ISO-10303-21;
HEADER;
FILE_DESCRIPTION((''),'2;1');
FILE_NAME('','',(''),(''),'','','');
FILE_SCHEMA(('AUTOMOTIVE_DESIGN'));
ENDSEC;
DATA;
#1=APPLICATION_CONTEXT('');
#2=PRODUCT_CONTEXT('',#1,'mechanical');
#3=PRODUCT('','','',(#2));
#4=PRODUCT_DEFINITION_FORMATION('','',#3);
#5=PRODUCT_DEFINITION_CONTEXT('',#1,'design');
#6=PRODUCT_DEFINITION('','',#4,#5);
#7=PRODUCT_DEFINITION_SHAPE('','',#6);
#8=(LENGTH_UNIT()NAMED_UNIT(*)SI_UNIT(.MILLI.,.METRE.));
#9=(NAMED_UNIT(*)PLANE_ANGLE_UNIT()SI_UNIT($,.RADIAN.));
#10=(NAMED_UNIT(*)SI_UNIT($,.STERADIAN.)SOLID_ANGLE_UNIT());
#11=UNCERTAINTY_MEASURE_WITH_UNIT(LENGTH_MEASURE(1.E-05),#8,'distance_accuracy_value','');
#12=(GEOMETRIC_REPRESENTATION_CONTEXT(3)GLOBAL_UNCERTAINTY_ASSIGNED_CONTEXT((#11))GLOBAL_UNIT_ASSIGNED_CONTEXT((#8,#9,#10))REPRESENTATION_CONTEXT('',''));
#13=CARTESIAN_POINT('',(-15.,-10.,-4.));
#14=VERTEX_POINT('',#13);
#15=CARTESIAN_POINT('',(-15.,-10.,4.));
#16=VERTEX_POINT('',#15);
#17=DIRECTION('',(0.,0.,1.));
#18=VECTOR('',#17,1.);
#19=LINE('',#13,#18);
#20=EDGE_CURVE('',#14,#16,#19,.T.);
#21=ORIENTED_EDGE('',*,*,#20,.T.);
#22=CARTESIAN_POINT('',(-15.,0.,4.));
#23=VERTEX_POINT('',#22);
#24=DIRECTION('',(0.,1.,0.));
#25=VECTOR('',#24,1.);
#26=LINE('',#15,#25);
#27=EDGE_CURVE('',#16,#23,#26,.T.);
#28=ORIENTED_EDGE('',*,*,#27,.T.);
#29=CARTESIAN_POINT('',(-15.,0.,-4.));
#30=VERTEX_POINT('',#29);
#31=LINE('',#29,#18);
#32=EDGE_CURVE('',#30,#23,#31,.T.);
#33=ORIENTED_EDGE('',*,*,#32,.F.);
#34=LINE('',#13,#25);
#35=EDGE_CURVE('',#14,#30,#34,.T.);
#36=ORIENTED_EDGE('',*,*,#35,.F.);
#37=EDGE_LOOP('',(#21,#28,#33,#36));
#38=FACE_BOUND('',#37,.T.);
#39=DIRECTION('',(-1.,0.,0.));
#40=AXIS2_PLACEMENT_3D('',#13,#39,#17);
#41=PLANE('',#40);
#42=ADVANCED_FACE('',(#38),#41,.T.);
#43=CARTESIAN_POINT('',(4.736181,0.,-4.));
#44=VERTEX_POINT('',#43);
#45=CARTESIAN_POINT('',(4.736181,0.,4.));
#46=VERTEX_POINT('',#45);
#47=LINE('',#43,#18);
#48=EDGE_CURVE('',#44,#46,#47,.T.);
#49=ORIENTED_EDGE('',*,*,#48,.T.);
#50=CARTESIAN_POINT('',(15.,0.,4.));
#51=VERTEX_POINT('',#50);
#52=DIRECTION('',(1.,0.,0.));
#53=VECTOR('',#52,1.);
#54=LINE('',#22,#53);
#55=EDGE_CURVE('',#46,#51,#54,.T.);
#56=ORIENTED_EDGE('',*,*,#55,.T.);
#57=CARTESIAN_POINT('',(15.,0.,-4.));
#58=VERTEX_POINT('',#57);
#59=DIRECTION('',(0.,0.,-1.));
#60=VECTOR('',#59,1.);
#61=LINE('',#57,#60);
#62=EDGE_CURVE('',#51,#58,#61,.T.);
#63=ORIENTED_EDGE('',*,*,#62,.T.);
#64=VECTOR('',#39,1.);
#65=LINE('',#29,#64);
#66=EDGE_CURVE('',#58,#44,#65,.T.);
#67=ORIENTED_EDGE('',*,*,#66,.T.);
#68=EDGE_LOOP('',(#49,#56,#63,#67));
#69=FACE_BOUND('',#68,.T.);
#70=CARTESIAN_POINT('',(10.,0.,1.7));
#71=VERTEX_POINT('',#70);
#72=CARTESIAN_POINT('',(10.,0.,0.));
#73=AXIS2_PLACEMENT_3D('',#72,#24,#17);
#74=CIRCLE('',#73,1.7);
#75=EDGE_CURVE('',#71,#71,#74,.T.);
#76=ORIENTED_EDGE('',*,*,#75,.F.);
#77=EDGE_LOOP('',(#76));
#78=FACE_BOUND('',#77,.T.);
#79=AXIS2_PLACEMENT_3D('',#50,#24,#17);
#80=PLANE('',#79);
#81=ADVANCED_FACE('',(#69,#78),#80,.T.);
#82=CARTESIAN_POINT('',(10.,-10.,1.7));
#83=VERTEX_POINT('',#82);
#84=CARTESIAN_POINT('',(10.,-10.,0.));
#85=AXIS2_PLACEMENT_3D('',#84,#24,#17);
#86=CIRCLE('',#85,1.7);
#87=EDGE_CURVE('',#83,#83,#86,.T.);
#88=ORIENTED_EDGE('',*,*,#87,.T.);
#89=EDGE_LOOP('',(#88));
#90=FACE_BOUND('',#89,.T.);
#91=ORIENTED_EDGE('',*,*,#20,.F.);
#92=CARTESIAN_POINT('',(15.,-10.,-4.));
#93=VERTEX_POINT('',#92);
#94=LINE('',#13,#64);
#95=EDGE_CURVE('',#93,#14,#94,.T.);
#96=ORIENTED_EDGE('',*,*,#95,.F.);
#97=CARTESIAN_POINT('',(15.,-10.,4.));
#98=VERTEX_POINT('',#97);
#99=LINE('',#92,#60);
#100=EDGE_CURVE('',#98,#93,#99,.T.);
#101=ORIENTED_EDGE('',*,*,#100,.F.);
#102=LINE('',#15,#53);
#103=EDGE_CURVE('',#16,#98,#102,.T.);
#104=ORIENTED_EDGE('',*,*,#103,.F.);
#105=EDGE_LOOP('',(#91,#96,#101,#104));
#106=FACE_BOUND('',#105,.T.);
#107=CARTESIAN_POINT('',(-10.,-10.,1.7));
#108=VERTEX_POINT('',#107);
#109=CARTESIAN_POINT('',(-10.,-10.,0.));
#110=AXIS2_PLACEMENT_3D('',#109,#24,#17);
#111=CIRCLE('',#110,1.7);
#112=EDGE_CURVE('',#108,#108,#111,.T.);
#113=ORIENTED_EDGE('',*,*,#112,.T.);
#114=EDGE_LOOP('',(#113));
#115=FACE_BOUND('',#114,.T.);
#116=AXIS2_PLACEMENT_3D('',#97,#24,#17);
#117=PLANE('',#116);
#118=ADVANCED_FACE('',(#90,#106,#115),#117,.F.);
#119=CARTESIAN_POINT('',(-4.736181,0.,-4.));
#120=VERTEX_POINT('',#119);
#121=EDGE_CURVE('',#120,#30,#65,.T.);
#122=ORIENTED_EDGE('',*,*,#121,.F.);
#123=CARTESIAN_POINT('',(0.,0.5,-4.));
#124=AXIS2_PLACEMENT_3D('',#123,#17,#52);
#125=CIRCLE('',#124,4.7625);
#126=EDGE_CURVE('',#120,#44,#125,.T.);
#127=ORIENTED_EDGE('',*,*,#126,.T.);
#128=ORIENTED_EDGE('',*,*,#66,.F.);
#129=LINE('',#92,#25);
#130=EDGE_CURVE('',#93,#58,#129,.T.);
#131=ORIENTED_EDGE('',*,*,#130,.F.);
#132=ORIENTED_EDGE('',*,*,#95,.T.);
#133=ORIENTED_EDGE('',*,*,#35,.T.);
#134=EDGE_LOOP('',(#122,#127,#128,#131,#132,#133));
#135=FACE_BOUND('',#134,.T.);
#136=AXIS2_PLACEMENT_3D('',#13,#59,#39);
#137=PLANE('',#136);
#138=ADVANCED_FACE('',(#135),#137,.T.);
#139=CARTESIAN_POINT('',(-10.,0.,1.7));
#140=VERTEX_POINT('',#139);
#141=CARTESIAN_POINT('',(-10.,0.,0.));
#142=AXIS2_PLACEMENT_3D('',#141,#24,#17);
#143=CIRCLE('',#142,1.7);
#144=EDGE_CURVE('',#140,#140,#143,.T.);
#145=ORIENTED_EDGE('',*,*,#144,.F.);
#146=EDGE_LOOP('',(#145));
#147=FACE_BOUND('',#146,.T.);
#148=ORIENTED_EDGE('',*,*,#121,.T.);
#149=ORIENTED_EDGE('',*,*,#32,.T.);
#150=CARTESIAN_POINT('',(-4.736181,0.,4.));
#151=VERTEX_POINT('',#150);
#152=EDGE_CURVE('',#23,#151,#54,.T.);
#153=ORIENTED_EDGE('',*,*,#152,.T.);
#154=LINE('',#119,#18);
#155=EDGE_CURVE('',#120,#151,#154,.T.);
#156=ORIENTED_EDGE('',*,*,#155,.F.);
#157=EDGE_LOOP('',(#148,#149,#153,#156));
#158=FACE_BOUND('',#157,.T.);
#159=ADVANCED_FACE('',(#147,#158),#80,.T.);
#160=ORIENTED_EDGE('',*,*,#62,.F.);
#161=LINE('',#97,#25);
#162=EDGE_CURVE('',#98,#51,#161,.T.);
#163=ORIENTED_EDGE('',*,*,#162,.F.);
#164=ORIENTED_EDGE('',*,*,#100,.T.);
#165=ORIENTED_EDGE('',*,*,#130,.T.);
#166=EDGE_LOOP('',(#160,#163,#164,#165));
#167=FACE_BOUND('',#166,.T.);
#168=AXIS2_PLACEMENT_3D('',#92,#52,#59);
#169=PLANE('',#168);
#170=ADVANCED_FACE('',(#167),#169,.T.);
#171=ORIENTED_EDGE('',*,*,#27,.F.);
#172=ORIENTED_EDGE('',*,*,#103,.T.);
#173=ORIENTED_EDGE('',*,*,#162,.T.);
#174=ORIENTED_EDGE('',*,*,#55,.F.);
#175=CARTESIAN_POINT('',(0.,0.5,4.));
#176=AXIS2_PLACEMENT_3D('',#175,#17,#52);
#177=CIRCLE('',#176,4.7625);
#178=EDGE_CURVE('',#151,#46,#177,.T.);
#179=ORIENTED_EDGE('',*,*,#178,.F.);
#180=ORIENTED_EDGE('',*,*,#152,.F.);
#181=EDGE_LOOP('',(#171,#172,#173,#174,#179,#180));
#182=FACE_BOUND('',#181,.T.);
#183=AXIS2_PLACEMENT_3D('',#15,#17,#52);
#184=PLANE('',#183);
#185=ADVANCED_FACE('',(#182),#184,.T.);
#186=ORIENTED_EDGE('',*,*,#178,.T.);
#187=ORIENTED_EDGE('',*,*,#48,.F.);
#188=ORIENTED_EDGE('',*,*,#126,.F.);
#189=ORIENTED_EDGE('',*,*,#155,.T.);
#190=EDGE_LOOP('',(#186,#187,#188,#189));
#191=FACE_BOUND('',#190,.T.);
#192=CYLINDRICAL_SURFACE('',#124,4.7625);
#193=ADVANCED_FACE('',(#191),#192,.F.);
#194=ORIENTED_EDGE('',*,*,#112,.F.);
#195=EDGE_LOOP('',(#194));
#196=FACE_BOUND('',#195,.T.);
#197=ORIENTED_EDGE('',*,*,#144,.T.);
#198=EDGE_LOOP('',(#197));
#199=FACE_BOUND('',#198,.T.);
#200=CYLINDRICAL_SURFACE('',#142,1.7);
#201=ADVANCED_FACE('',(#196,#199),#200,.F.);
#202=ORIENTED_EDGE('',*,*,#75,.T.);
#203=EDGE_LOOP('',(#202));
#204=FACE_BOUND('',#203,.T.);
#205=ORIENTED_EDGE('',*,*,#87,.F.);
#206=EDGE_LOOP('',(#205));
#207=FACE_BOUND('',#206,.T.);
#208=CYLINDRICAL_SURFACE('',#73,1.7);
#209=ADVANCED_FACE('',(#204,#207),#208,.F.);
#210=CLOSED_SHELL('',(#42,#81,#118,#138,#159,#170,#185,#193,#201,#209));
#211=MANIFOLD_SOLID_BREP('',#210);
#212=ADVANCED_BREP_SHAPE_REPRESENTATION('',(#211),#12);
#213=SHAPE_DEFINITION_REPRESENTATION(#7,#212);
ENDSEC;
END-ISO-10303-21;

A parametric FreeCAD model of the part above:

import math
import FreeCAD as App
import Part
import Sketcher
from FreeCAD import Vector
Q = App.Units.Quantity

doc = App.newDocument("Part")
params = doc.addObject("Spreadsheet::Sheet", "Params")
for row, (alias, value) in enumerate([
    ("sketch1_width", "30 mm"),
    ("sketch1_height", "8 mm"),
    ("pad1_length", "10 mm"),
    ("sketch2_diameter", "3.4 mm"),
    ("hole_diameter", "3.4 mm"),
], start=1):
    params.set(f"A{row}", alias)
    params.set(f"B{row}", "=" + value)
    params.setAlias(f"B{row}", alias)

body = doc.addObject("PartDesign::Body", "Body")

# Sketch on XZ plane
sketch1 = body.newObject("Sketcher::SketchObject", "Sketch")
sketch1.AttachmentSupport = (doc.getObject("XZ_Plane"), [""])
sketch1.MapMode = "FlatFace"
sketch1.addGeometry(Part.LineSegment(Vector(-15, -4, 0), Vector(-15, 4, 0)), False)
sketch1.addGeometry(Part.LineSegment(Vector(-15, 4, 0), Vector(15, 4, 0)), False)
sketch1.addGeometry(Part.LineSegment(Vector(15, 4, 0), Vector(15, -4, 0)), False)
sketch1.addGeometry(Part.LineSegment(Vector(15, -4, 0), Vector(-15, -4, 0)), False)
sketch1.addConstraint(Sketcher.Constraint("Coincident", 0, 2, 1, 1))
sketch1.addConstraint(Sketcher.Constraint("Coincident", 1, 2, 2, 1))
sketch1.addConstraint(Sketcher.Constraint("Coincident", 2, 2, 3, 1))
sketch1.addConstraint(Sketcher.Constraint("Coincident", 3, 2, 0, 1))
sketch1.addConstraint(Sketcher.Constraint("Vertical", 0))
sketch1.addConstraint(Sketcher.Constraint("Horizontal", 1))
sketch1.addConstraint(Sketcher.Constraint("Vertical", 2))
sketch1.addConstraint(Sketcher.Constraint("Horizontal", 3))
sketch1.addConstraint(Sketcher.Constraint("Symmetric", 0, 2, 2, 2, -1, 1))
sketch1.addConstraint(Sketcher.Constraint("DistanceX", 1, 1, 1, 2, Q("30 mm")))
sketch1.addConstraint(Sketcher.Constraint("DistanceY", 0, 1, 0, 2, Q("8 mm")))
sketch1.setExpression("Constraints[9]", "Params.sketch1_width")
sketch1.setExpression("Constraints[10]", "Params.sketch1_height")
pad1 = body.newObject("PartDesign::Pad", "Pad")
pad1.Profile = sketch1
pad1.setExpression("Length", "Params.pad1_length")

# Sketch on XZ plane
sketch2 = body.newObject("Sketcher::SketchObject", "Sketch001")
sketch2.AttachmentSupport = (doc.getObject("XZ_Plane"), [""])
sketch2.MapMode = "FlatFace"
sketch2.addGeometry(Part.Circle(Vector(-10, 0, 0), Vector(0, 0, 1), 1.7), False)
sketch2.addGeometry(Part.Circle(Vector(10, 0, 0), Vector(0, 0, 1), 1.7), False)
sketch2.addConstraint(Sketcher.Constraint("Equal", 0, 1))
sketch2.addConstraint(Sketcher.Constraint("Symmetric", 0, 3, 1, 3, -1, 1))
sketch2.addConstraint(Sketcher.Constraint("PointOnObject", 0, 3, -1))
sketch2.addConstraint(Sketcher.Constraint("Diameter", 0, Q("3.4 mm")))
sketch2.addConstraint(Sketcher.Constraint("DistanceX", 0, 3, -1, 1, Q("10 mm")))
sketch2.setExpression("Constraints[3]", "Params.sketch2_diameter")
doc.recompute()
hole = body.newObject("PartDesign::Hole", "Hole")
hole.Profile = sketch2
hole.ThreadType = "None"
hole.setExpression("Diameter", "Params.hole_diameter")
hole.DepthType = "ThroughAll"
hole.Reversed = True

# Sketch on XY plane
sketch3 = body.newObject("Sketcher::SketchObject", "Sketch002")
sketch3.AttachmentSupport = (doc.getObject("XY_Plane"), [""])
sketch3.MapMode = "FlatFace"
sketch3.AttachmentOffset = App.Placement(Vector(0, 0, 4), App.Rotation())
sketch3.addGeometry(Part.LineSegment(Vector(4.7, 0, 0), Vector(-4.7, 0, 0)), False)
sketch3.addGeometry(Part.ArcOfCircle(Part.Circle(Vector(0, 0.5, 0), Vector(0, 0, 1), 4.8), math.radians(-174), math.radians(-6)), False)
sketch3.addConstraint(Sketcher.Constraint("Coincident", 0, 1, 1, 2))
sketch3.addConstraint(Sketcher.Constraint("Coincident", 1, 1, 0, 2))
sketch3.addConstraint(Sketcher.Constraint("Horizontal", 0))
sketch3.addConstraint(Sketcher.Constraint("Symmetric", 0, 1, 1, 1, -1, 1))
sketch3.addConstraint(Sketcher.Constraint("DistanceY", -1, 1, 1, 3, Q("0.5 mm")))
sketch3.addConstraint(Sketcher.Constraint("Radius", 1, Q("4.7625 mm")))
pocket1 = body.newObject("PartDesign::Pocket", "Pocket")
pocket1.Profile = sketch3
pocket1.Type = "ThroughAll"

doc.recompute()
